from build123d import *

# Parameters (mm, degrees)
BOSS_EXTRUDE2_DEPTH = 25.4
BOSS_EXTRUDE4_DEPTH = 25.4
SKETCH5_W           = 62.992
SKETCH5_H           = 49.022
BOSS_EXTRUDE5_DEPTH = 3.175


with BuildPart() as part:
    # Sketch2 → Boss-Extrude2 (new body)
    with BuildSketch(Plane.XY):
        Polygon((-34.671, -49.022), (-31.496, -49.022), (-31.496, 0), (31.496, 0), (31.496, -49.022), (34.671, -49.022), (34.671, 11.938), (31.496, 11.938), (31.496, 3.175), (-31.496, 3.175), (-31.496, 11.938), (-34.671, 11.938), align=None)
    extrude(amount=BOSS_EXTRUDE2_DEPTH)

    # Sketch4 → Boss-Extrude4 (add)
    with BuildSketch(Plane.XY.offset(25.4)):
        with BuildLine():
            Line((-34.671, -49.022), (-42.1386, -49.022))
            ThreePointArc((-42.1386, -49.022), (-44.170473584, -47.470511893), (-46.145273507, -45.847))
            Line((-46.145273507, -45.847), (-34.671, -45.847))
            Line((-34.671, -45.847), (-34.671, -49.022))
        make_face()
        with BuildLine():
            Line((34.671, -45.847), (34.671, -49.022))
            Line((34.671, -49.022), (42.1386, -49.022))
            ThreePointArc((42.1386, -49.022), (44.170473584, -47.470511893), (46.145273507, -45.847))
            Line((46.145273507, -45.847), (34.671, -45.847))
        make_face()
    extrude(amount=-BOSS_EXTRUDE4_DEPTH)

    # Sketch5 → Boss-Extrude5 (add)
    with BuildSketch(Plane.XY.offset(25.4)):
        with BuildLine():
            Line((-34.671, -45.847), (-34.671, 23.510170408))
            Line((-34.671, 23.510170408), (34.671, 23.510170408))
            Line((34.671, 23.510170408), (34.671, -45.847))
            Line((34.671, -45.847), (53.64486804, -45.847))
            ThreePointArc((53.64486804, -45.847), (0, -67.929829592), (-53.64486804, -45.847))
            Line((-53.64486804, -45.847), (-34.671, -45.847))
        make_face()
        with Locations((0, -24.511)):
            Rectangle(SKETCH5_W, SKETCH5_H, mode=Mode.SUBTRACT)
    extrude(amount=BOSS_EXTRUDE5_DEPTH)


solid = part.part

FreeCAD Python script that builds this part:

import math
import FreeCAD as App
import Part
import Sketcher
from FreeCAD import Vector
Q = App.Units.Quantity


def add_polygon(sketch, points):
    """Adds a closed chain of lines whose ends are joined by coincident constraints."""
    first, n = sketch.GeometryCount, len(points)
    for a, b in zip(points, points[1:] + points[:1]):
        sketch.addGeometry(Part.LineSegment(App.Vector(*a, 0), App.Vector(*b, 0)), False)
    for i in range(n):
        sketch.addConstraint(Sketcher.Constraint("Coincident", first + i, 2, first + (i + 1) % n, 1))

doc = App.newDocument("Part")
params = doc.addObject("Spreadsheet::Sheet", "Params")
for row, (alias, value) in enumerate([
    ("sketch1_height", "2.4 in"),
    ("sketch1_width", "2.48 in"),
    ("sketch1_height2", "1.93 in"),
    ("sketch1_width2", "0.125 in"),
    ("sketch1_height3", "0.345 in"),
    ("pad1_length", "1 in"),
    ("sketch2_radius", "2.8 in"),
    ("sketch2_width", "0.294 in"),
    ("sketch2_height", "0.125 in"),
    ("pad2_length", "1 in"),
    ("sketch3_radius", "3 in"),
    ("sketch3_width", "2.73 in"),
    ("sketch3_width2", "2.48 in"),
    ("sketch3_height", "1.93 in"),
    ("pad3_length", "0.125 in"),
], start=1):
    params.set(f"A{row}", alias)
    params.set(f"B{row}", "=" + value)
    params.setAlias(f"B{row}", alias)

body = doc.addObject("PartDesign::Body", "Body")

# Sketch on XY plane
sketch1 = body.newObject("Sketcher::SketchObject", "Sketch")
sketch1.AttachmentSupport = (doc.getObject("XY_Plane"), [""])
sketch1.MapMode = "FlatFace"
add_polygon(sketch1, [(-34.671, -49.022), (-31.496, -49.022), (-31.496, 0), (31.496, 0), (31.496, -49.022), (34.671, -49.022), (34.671, 11.938), (31.496, 11.938), (31.496, 3.175), (-31.496, 3.175), (-31.496, 11.938), (-34.671, 11.938)])  # lines 0-11
sketch1.addConstraint([
    Sketcher.Constraint("Horizontal", 0),
    Sketcher.Constraint("Vertical", 1),
    Sketcher.Constraint("Horizontal", 2),
    Sketcher.Constraint("Vertical", 3),
    Sketcher.Constraint("Horizontal", 4),
    Sketcher.Constraint("Vertical", 5),
    Sketcher.Constraint("Horizontal", 6),
    Sketcher.Constraint("Vertical", 7),
    Sketcher.Constraint("Horizontal", 8),
    Sketcher.Constraint("Vertical", 9),
    Sketcher.Constraint("Horizontal", 10),
    Sketcher.Constraint("Vertical", 11),
    Sketcher.Constraint("Symmetric", 1, 2, 2, 2, -1, 1),
    Sketcher.Constraint("Symmetric", 6, 2, 9, 2, -2),
    Sketcher.Constraint("Symmetric", 4, 2, 11, 2, -2),
    Sketcher.Constraint("Vertical", 3, 2, 6, 2),
    Sketcher.Constraint("DistanceY", 5, 1, 5, 2, Q("2.4 in")),
    Sketcher.Constraint("DistanceX", 2, 1, 2, 2, Q("2.48 in")),
    Sketcher.Constraint("DistanceY", 1, 1, 1, 2, Q("1.93 in")),
    Sketcher.Constraint("DistanceX", 0, 1, 0, 2, Q("0.125 in")),
    Sketcher.Constraint("DistanceY", 7, 2, 7, 1, Q("0.345 in")),
])
sketch1.setExpression("Constraints[28]", "Params.sketch1_height")
sketch1.setExpression("Constraints[29]", "Params.sketch1_width")
sketch1.setExpression("Constraints[30]", "Params.sketch1_height2")
sketch1.setExpression("Constraints[31]", "Params.sketch1_width2")
sketch1.setExpression("Constraints[32]", "Params.sketch1_height3")
pad1 = body.newObject("PartDesign::Pad", "Pad")
pad1.Profile = sketch1
pad1.setExpression("Length", "Params.pad1_length")

# Sketch on XY plane
sketch2 = body.newObject("Sketcher::SketchObject", "Sketch001")
sketch2.AttachmentSupport = (doc.getObject("XY_Plane"), [""])
sketch2.MapMode = "FlatFace"
sketch2.AttachmentOffset = App.Placement(Vector(0, 0, 1 * 25.4), App.Rotation())
sketch2.addGeometry([
    Part.LineSegment(Vector(-42.1386, -49.022, 0), Vector(-34.671, -49.022, 0)),  # 0
    Part.LineSegment(Vector(-34.671, -49.022, 0), Vector(-34.671, -45.847, 0)),  # 1
    Part.LineSegment(Vector(-34.671, -45.847, 0), Vector(-46.145274, -45.847, 0)),  # 2
    Part.ArcOfCircle(Part.Circle(Vector(0, 8.27017, 0), Vector(0, 0, 1), 71.12), math.radians(-130.453959), math.radians(-126.334617)),  # 3
    Part.LineSegment(Vector(34.671, -45.847, 0), Vector(34.671, -49.022, 0)),  # 4
    Part.LineSegment(Vector(34.671, -49.022, 0), Vector(42.1386, -49.022, 0)),  # 5
    Part.ArcOfCircle(Part.Circle(Vector(0, 8.27017, 0), Vector(0, 0, 1), 71.12), math.radians(-53.665383), math.radians(-49.546041)),  # 6
    Part.LineSegment(Vector(46.145274, -45.847, 0), Vector(34.671, -45.847, 0)),  # 7
], False)
sketch2.addConstraint([
    Sketcher.Constraint("Coincident", 0, 2, 1, 1),
    Sketcher.Constraint("Coincident", 1, 2, 2, 1),
    Sketcher.Constraint("Coincident", 2, 2, 3, 1),
    Sketcher.Constraint("Coincident", 3, 2, 0, 1),
    Sketcher.Constraint("Coincident", 4, 2, 5, 1),
    Sketcher.Constraint("Coincident", 5, 2, 6, 1),
    Sketcher.Constraint("Coincident", 6, 2, 7, 1),
    Sketcher.Constraint("Coincident", 7, 2, 4, 1),
    Sketcher.Constraint("Horizontal", 0),
    Sketcher.Constraint("Vertical", 1),
    Sketcher.Constraint("Horizontal", 2),
    Sketcher.Constraint("Vertical", 4),
    Sketcher.Constraint("Horizontal", 5),
    Sketcher.Constraint("Horizontal", 7),
    Sketcher.Constraint("Coincident", 6, 3, 3, 3),
    Sketcher.Constraint("Equal", 3, 6),
    Sketcher.Constraint("Symmetric", 0, 2, 4, 2, -2),
    Sketcher.Constraint("Symmetric", 2, 2, 6, 2, -2),
    Sketcher.Constraint("Radius", 3, Q("2.8 in")),
    Sketcher.Constraint("DistanceX", 0, 1, 0, 2, Q("0.294 in")),
    Sketcher.Constraint("DistanceY", 1, 1, 1, 2, Q("0.125 in")),
    Sketcher.Constraint("DistanceY", 0, 2, -1, 1, Q("1.93 in")),
    Sketcher.Constraint("DistanceX", 0, 2, 4, 2, Q("2.73 in")),
])
sketch2.setExpression("Constraints[18]", "Params.sketch2_radius")
sketch2.setExpression("Constraints[19]", "Params.sketch2_width")
sketch2.setExpression("Constraints[20]", "Params.sketch2_height")
pad2 = body.newObject("PartDesign::Pad", "Pad001")
pad2.Profile = sketch2
pad2.setExpression("Length", "Params.pad2_length")
pad2.Reversed = True

# Sketch on XY plane
sketch3 = body.newObject("Sketcher::SketchObject", "Sketch002")
sketch3.AttachmentSupport = (doc.getObject("XY_Plane"), [""])
sketch3.MapMode = "FlatFace"
sketch3.AttachmentOffset = App.Placement(Vector(0, 0, 1 * 25.4), App.Rotation())
sketch3.addGeometry(Part.LineSegment(Vector(-34.671, 23.51017, 0), Vector(-34.671, -45.847, 0)), False)  # 0
sketch3.addGeometry(Part.LineSegment(Vector(-34.671, -45.847, 0), Vector(-53.644868, -45.847, 0)), False)  # 1
sketch3.addGeometry(Part.ArcOfCircle(Part.Circle(Vector(0, 8.27017, 0), Vector(0, 0, 1), 76.2), math.radians(-134.748884), math.radians(-45.251116)), False)  # 2
sketch3.addGeometry(Part.LineSegment(Vector(53.644868, -45.847, 0), Vector(34.671, -45.847, 0)), False)  # 3
sketch3.addGeometry(Part.LineSegment(Vector(34.671, -45.847, 0), Vector(34.671, 23.51017, 0)), False)  # 4
sketch3.addGeometry(Part.LineSegment(Vector(34.671, 23.51017, 0), Vector(-34.671, 23.51017, 0)), False)  # 5
add_polygon(sketch3, [(-31.496, -49.022), (-31.496, 0), (31.496, 0), (31.496, -49.022)])  # lines 6-9
sketch3.addConstraint([
    Sketcher.Constraint("Coincident", 0, 2, 1, 1),
    Sketcher.Constraint("Coincident", 1, 2, 2, 1),
    Sketcher.Constraint("Coincident", 2, 2, 3, 1),
    Sketcher.Constraint("Coincident", 3, 2, 4, 1),
    Sketcher.Constraint("Coincident", 4, 2, 5, 1),
    Sketcher.Constraint("Coincident", 5, 2, 0, 1),
    Sketcher.Constraint("Vertical", 0),
    Sketcher.Constraint("Horizontal", 1),
    Sketcher.Constraint("Horizontal", 3),
    Sketcher.Constraint("Vertical", 4),
    Sketcher.Constraint("Horizontal", 5),
    Sketcher.Constraint("Vertical", 6),
    Sketcher.Constraint("Horizontal", 7),
    Sketcher.Constraint("Vertical", 8),
    Sketcher.Constraint("Horizontal", 9),
    Sketcher.Constraint("Symmetric", 6, 2, 7, 2, -1, 1),
    Sketcher.Constraint("Symmetric", 1, 2, 2, 2, -2),
    Sketcher.Constraint("Equal", 1, 3),
    Sketcher.Constraint("Radius", 2, Q("3 in")),
    Sketcher.Constraint("DistanceX", 5, 2, 5, 1, Q("2.73 in")),
    Sketcher.Constraint("DistanceX", 7, 1, 7, 2, Q("2.48 in")),
    Sketcher.Constraint("DistanceY", 6, 1, 6, 2, Q("1.93 in")),
    Sketcher.Constraint("DistanceY", 2, 3, 4, 2, Q("0.6 in")),
    Sketcher.Constraint("DistanceY", 0, 2, -1, 1, Q("1.805 in")),
    Sketcher.Constraint("DistanceX", 1, 2, 1, 1, 18.973868),
])
sketch3.setExpression("Constraints[22]", "Params.sketch3_radius")
sketch3.setExpression("Constraints[23]", "Params.sketch3_width")
sketch3.setExpression("Constraints[24]", "Params.sketch3_width2")
sketch3.setExpression("Constraints[25]", "Params.sketch3_height")
pad3 = body.newObject("PartDesign::Pad", "Pad002")
pad3.Profile = sketch3
pad3.setExpression("Length", "Params.pad3_length")

doc.recompute()
